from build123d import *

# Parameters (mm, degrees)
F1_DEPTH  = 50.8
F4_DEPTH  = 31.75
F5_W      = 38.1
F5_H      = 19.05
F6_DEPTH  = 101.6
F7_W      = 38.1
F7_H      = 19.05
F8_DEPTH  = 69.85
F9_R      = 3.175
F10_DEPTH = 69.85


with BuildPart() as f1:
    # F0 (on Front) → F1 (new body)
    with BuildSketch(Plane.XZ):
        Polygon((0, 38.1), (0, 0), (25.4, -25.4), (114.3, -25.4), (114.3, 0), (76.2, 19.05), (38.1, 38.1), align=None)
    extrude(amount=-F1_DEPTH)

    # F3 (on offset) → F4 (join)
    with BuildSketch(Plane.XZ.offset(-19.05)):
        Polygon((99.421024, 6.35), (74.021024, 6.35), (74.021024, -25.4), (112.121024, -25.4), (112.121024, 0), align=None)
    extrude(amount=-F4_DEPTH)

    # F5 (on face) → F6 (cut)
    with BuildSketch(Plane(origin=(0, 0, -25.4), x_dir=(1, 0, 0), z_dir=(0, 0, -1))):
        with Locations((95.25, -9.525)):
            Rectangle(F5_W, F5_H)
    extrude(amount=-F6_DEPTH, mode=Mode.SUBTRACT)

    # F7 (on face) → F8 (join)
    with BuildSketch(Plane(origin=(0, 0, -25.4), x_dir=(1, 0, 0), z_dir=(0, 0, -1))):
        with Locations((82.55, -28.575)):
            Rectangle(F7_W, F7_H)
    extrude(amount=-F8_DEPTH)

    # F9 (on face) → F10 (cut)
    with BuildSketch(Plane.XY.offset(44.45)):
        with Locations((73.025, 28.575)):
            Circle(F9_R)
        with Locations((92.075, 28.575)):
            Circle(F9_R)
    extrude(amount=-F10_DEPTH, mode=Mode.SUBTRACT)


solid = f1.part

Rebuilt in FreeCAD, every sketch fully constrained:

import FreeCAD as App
import Part
import Sketcher
from FreeCAD import Vector
Q = App.Units.Quantity


def add_polygon(sketch, points):
    """Adds a closed chain of lines whose ends are joined by coincident constraints."""
    first, n = sketch.GeometryCount, len(points)
    for a, b in zip(points, points[1:] + points[:1]):
        sketch.addGeometry(Part.LineSegment(App.Vector(*a, 0), App.Vector(*b, 0)), False)
    for i in range(n):
        sketch.addConstraint(Sketcher.Constraint("Coincident", first + i, 2, first + (i + 1) % n, 1))

doc = App.newDocument("Part")
params = doc.addObject("Spreadsheet::Sheet", "Params")
for row, (alias, value) in enumerate([
    ("sketch1_height", "1 in"),
    ("sketch1_width", "3.5 in"),
    ("sketch1_width2", "1.5 in"),
    ("pad1_length", "2 in"),
    ("sketch2_width", "1 in"),
    ("sketch2_width2", "1.5 in"),
    ("sketch2_height", "1.25 in"),
    ("pad2_length", "1.25 in"),
    ("sketch3_width", "1.5 in"),
    ("sketch3_height", "0.75 in"),
    ("pocket1_length", "4 in"),
    ("sketch4_width", "1.5 in"),
    ("sketch4_height", "0.75 in"),
    ("pad3_length", "2.75 in"),
    ("sketch5_diameter", "0.25 in"),
    ("pocket2_length", "2.75 in"),
], start=1):
    params.set(f"A{row}", alias)
    params.set(f"B{row}", "=" + value)
    params.setAlias(f"B{row}", alias)

body = doc.addObject("PartDesign::Body", "Body")

# Sketch on XZ plane
sketch1 = body.newObject("Sketcher::SketchObject", "Sketch")
sketch1.AttachmentSupport = (doc.getObject("XZ_Plane"), [""])
sketch1.MapMode = "FlatFace"
add_polygon(sketch1, [(0, 38), (0, 0), (25, -25), (114, -25), (114, 0), (38, 38)])  # lines 0-5
sketch1.addConstraint(Sketcher.Constraint("Vertical", 0))
sketch1.addConstraint(Sketcher.Constraint("Horizontal", 2))
sketch1.addConstraint(Sketcher.Constraint("Vertical", 3))
sketch1.addConstraint(Sketcher.Constraint("Horizontal", 5))
sketch1.addConstraint(Sketcher.Constraint("Coincident", 0, 2, -1, 1))
sketch1.addConstraint(Sketcher.Constraint("PointOnObject", 3, 2, -1))
sketch1.addConstraint(Sketcher.Constraint("Equal", 5, 0))
sketch1.addConstraint(Sketcher.Constraint("DistanceY", 3, 1, 3, 2, Q("1 in")))
sketch1.addConstraint(Sketcher.Constraint("DistanceX", 2, 1, 2, 2, Q("3.5 in")))
sketch1.addConstraint(Sketcher.Constraint("DistanceX", 5, 2, 5, 1, Q("1.5 in")))
sketch1.addConstraint(Sketcher.Constraint("DistanceX", -1, 1, 1, 2, Q("1 in")))
sketch1.setExpression("Constraints[13]", "Params.sketch1_height")
sketch1.setExpression("Constraints[14]", "Params.sketch1_width")
sketch1.setExpression("Constraints[15]", "Params.sketch1_width2")
pad1 = body.newObject("PartDesign::Pad", "Pad")
pad1.Profile = sketch1
pad1.setExpression("Length", "Params.pad1_length")
pad1.Reversed = True

# Sketch on XZ plane
sketch2 = body.newObject("Sketcher::SketchObject", "Sketch001")
sketch2.AttachmentSupport = (doc.getObject("XZ_Plane"), [""])
sketch2.MapMode = "FlatFace"
sketch2.AttachmentOffset = App.Placement(Vector(0, 0, -0.75 * 25.4), App.Rotation())
add_polygon(sketch2, [(99, 6), (74, 6), (74, -25), (112, -25), (112, 0)])  # lines 0-4
sketch2.addConstraint(Sketcher.Constraint("Horizontal", 0))
sketch2.addConstraint(Sketcher.Constraint("Vertical", 1))
sketch2.addConstraint(Sketcher.Constraint("Horizontal", 2))
sketch2.addConstraint(Sketcher.Constraint("Vertical", 3))
sketch2.addConstraint(Sketcher.Constraint("PointOnObject", 3, 2, -1))
sketch2.addConstraint(Sketcher.Constraint("Equal", 0, 3))
sketch2.addConstraint(Sketcher.Constraint("DistanceX", 0, 2, 0, 1, Q("1 in")))
sketch2.addConstraint(Sketcher.Constraint("DistanceX", 2, 1, 2, 2, Q("1.5 in")))
sketch2.addConstraint(Sketcher.Constraint("DistanceY", 1, 2, 1, 1, Q("1.25 in")))
sketch2.addConstraint(Sketcher.Constraint("DistanceX", -1, 1, 0, 2, Q("74.021024 mm")))
sketch2.setExpression("Constraints[11]", "Params.sketch2_width")
sketch2.setExpression("Constraints[12]", "Params.sketch2_width2")
sketch2.setExpression("Constraints[13]", "Params.sketch2_height")
pad2 = body.newObject("PartDesign::Pad", "Pad001")
pad2.Profile = sketch2
pad2.setExpression("Length", "Params.pad2_length")
pad2.Reversed = True

# Sketch on XY plane
sketch3 = body.newObject("Sketcher::SketchObject", "Sketch002")
sketch3.AttachmentSupport = (doc.getObject("XY_Plane"), [""])
sketch3.MapMode = "FlatFace"
sketch3.AttachmentOffset = App.Placement(Vector(0, 0, -1 * 25.4), App.Rotation())
add_polygon(sketch3, [(76, 0), (76, 19), (114, 19), (114, 0)])  # lines 0-3
sketch3.addConstraint(Sketcher.Constraint("Vertical", 0))
sketch3.addConstraint(Sketcher.Constraint("Horizontal", 1))
sketch3.addConstraint(Sketcher.Constraint("Vertical", 2))
sketch3.addConstraint(Sketcher.Constraint("Horizontal", 3))
sketch3.addConstraint(Sketcher.Constraint("PointOnObject", 2, 2, -1))
sketch3.addConstraint(Sketcher.Constraint("DistanceX", 1, 1, 1, 2, Q("1.5 in")))
sketch3.addConstraint(Sketcher.Constraint("DistanceX", -1, 1, 0, 2, Q("3 in")))
sketch3.addConstraint(Sketcher.Constraint("DistanceY", 0, 1, 0, 2, Q("0.75 in")))
sketch3.setExpression("Constraints[9]", "Params.sketch3_width")
sketch3.setExpression("Constraints[11]", "Params.sketch3_height")
pocket1 = body.newObject("PartDesign::Pocket", "Pocket")
pocket1.Profile = sketch3
pocket1.setExpression("Length", "Params.pocket1_length")
pocket1.Reversed = True

# Sketch on XY plane
sketch4 = body.newObject("Sketcher::SketchObject", "Sketch003")
sketch4.AttachmentSupport = (doc.getObject("XY_Plane"), [""])
sketch4.MapMode = "FlatFace"
sketch4.AttachmentOffset = App.Placement(Vector(0, 0, -1 * 25.4), App.Rotation())
add_polygon(sketch4, [(64, 19), (64, 38), (102, 38), (102, 19)])  # lines 0-3
sketch4.addConstraint(Sketcher.Constraint("Vertical", 0))
sketch4.addConstraint(Sketcher.Constraint("Horizontal", 1))
sketch4.addConstraint(Sketcher.Constraint("Vertical", 2))
sketch4.addConstraint(Sketcher.Constraint("Horizontal", 3))
sketch4.addConstraint(Sketcher.Constraint("DistanceX", 1, 1, 1, 2, Q("1.5 in")))
sketch4.addConstraint(Sketcher.Constraint("DistanceX", -1, 1, 1, 2, Q("4 in")))
sketch4.addConstraint(Sketcher.Constraint("DistanceY", 0, 1, 0, 2, Q("0.75 in")))
sketch4.addConstraint(Sketcher.Constraint("DistanceY", -1, 1, 0, 2, Q("1.5 in")))
sketch4.setExpression("Constraints[8]", "Params.sketch4_width")
sketch4.setExpression("Constraints[10]", "Params.sketch4_height")
pad3 = body.newObject("PartDesign::Pad", "Pad002")
pad3.Profile = sketch4
pad3.setExpression("Length", "Params.pad3_length")

# Sketch on XY plane
sketch5 = body.newObject("Sketcher::SketchObject", "Sketch004")
sketch5.AttachmentSupport = (doc.getObject("XY_Plane"), [""])
sketch5.MapMode = "FlatFace"
sketch5.AttachmentOffset = App.Placement(Vector(0, 0, 1.75 * 25.4), App.Rotation())
sketch5.addGeometry(Part.Circle(Vector(73, 28.6, 0), Vector(0, 0, 1), 3.2), False)
sketch5.addGeometry(Part.Circle(Vector(92.1, 28.6, 0), Vector(0, 0, 1), 3.2), False)
sketch5.addConstraint(Sketcher.Constraint("Equal", 0, 1))
sketch5.addConstraint(Sketcher.Constraint("Horizontal", 0, 3, 1, 3))
sketch5.addConstraint(Sketcher.Constraint("Diameter", 0, Q("0.25 in")))
sketch5.addConstraint(Sketcher.Constraint("DistanceX", 0, 3, 1, 3, Q("0.75 in")))
sketch5.addConstraint(Sketcher.Constraint("DistanceX", -1, 1, 0, 3, Q("2.875 in")))
sketch5.addConstraint(Sketcher.Constraint("DistanceY", -1, 1, 0, 3, Q("1.125 in")))
sketch5.setExpression("Constraints[2]", "Params.sketch5_diameter")
pocket2 = body.newObject("PartDesign::Pocket", "Pocket001")
pocket2.Profile = sketch5
pocket2.setExpression("Length", "Params.pocket2_length")

doc.recompute()
